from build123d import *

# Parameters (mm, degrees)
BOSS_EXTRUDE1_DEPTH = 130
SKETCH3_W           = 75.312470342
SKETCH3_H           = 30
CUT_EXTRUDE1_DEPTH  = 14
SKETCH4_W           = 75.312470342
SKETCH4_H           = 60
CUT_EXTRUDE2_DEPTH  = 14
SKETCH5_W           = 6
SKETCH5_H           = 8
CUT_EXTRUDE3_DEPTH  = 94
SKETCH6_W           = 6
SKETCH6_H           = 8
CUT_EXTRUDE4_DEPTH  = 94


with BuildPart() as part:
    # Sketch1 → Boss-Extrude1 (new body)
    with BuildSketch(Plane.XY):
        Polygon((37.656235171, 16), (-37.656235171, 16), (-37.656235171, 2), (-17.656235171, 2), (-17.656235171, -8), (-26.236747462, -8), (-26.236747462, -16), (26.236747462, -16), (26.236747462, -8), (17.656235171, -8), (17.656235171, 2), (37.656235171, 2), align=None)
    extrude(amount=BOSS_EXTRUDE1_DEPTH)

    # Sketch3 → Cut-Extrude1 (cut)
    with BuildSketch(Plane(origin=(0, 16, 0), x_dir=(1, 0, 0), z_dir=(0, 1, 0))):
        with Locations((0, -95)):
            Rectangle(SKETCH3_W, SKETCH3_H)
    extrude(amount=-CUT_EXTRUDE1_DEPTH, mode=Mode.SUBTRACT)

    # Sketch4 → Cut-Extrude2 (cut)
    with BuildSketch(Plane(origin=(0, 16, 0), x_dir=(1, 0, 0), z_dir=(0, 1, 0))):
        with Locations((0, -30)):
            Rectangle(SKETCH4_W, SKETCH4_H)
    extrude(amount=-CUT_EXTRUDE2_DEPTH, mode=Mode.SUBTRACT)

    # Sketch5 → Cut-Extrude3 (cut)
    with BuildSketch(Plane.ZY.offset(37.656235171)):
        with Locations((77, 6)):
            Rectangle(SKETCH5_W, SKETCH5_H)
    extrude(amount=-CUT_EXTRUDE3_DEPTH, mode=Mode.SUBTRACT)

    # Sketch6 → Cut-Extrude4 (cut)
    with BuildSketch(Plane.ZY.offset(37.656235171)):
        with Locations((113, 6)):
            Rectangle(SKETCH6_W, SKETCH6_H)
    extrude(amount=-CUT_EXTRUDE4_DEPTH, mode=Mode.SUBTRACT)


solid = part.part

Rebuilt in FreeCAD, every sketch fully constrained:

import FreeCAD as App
import Part
import Sketcher


def add_polygon(sketch, points):
    """Adds a closed chain of lines whose ends are joined by coincident constraints."""
    first, n = sketch.GeometryCount, len(points)
    for a, b in zip(points, points[1:] + points[:1]):
        sketch.addGeometry(Part.LineSegment(App.Vector(*a, 0), App.Vector(*b, 0)), False)
    for i in range(n):
        sketch.addConstraint(Sketcher.Constraint("Coincident", first + i, 2, first + (i + 1) % n, 1))

doc = App.newDocument("Part")
body = doc.addObject("PartDesign::Body", "Body")

# Sketch on XY plane
sketch1 = doc.addObject("Sketcher::SketchObject", "Sketch")
body.addObject(sketch1)
sketch1.AttachmentSupport = (doc.XY_Plane, [""])
sketch1.MapMode = "FlatFace"
add_polygon(sketch1, [(37.656235, 16), (-37.656235, 16), (-37.656235, 2), (-17.656235, 2), (-17.656235, -8), (-26.236747, -8), (-26.236747, -16), (26.236747, -16), (26.236747, -8), (17.656235, -8), (17.656235, 2), (37.656235, 2)])  # lines 0-11
sketch1.addConstraint([
    Sketcher.Constraint("Horizontal", 0),
    Sketcher.Constraint("Vertical", 1),
    Sketcher.Constraint("Horizontal", 2),
    Sketcher.Constraint("Vertical", 3),
    Sketcher.Constraint("Horizontal", 4),
    Sketcher.Constraint("Vertical", 5),
    Sketcher.Constraint("Horizontal", 6),
    Sketcher.Constraint("Vertical", 7),
    Sketcher.Constraint("Horizontal", 8),
    Sketcher.Constraint("Vertical", 9),
    Sketcher.Constraint("Horizontal", 10),
    Sketcher.Constraint("Vertical", 11),
    Sketcher.Constraint("Symmetric", 4, 2, 7, 2, -2),
    Sketcher.Constraint("Symmetric", 2, 2, 9, 2, -2),
    Sketcher.Constraint("Equal", 2, 10),
    Sketcher.Constraint("DistanceX", 2, 1, 2, 2, 20.0),
    Sketcher.Constraint("DistanceY", 1, 2, 1, 1, 14.0),
    Sketcher.Constraint("DistanceY", 3, 2, 3, 1, 10.0),
    Sketcher.Constraint("DistanceY", 5, 2, 5, 1, 8.0),
    Sketcher.Constraint("DistanceY", -1, 1, 0, 2, 16.0),
    Sketcher.Constraint("DistanceX", 0, 2, 0, 1, 75.31247),
    Sketcher.Constraint("DistanceX", 4, 2, 4, 1, 8.580512),
])
pad1 = doc.addObject("PartDesign::Pad", "Pad")
body.addObject(pad1)
pad1.Profile = sketch1
pad1.Length = 130

# Sketch on XZ plane
sketch2 = doc.addObject("Sketcher::SketchObject", "Sketch001")
body.addObject(sketch2)
sketch2.AttachmentSupport = (doc.XZ_Plane, [""])
sketch2.MapMode = "FlatFace"
sketch2.AttachmentOffset = App.Placement(App.Vector(0, 0, -16), App.Rotation())
add_polygon(sketch2, [(-37.656235, 80), (-37.656235, 110), (37.656235, 110), (37.656235, 80)])  # lines 0-3
sketch2.addConstraint([
    Sketcher.Constraint("Vertical", 0),
    Sketcher.Constraint("Horizontal", 1),
    Sketcher.Constraint("Vertical", 2),
    Sketcher.Constraint("Horizontal", 3),
    Sketcher.Constraint("DistanceY", 0, 1, 0, 2, 30.0),
    Sketcher.Constraint("DistanceY", -1, 1, 0, 2, 110.0),
    Sketcher.Constraint("DistanceX", 1, 1, 1, 2, 75.31247),
    Sketcher.Constraint("DistanceX", 0, 2, -1, 1, 37.656235),
])
pocket1 = doc.addObject("PartDesign::Pocket", "Pocket")
body.addObject(pocket1)
pocket1.Profile = sketch2
pocket1.Length = 14
pocket1.Reversed = True

# Sketch on XZ plane
sketch3 = doc.addObject("Sketcher::SketchObject", "Sketch002")
body.addObject(sketch3)
sketch3.AttachmentSupport = (doc.XZ_Plane, [""])
sketch3.MapMode = "FlatFace"
sketch3.AttachmentOffset = App.Placement(App.Vector(0, 0, -16), App.Rotation())
add_polygon(sketch3, [(-37.656235, 0), (-37.656235, 60), (37.656235, 60), (37.656235, 0)])  # lines 0-3
sketch3.addConstraint([
    Sketcher.Constraint("Vertical", 0),
    Sketcher.Constraint("Horizontal", 1),
    Sketcher.Constraint("Vertical", 2),
    Sketcher.Constraint("Horizontal", 3),
    Sketcher.Constraint("Symmetric", 2, 2, 3, 2, -1, 1),
    Sketcher.Constraint("DistanceY", 0, 1, 0, 2, 60.0),
    Sketcher.Constraint("DistanceX", 1, 1, 1, 2, 75.31247),
])
pocket2 = doc.addObject("PartDesign::Pocket", "Pocket001")
body.addObject(pocket2)
pocket2.Profile = sketch3
pocket2.Length = 14
pocket2.Reversed = True

# Sketch on YZ plane
sketch4 = doc.addObject("Sketcher::SketchObject", "Sketch003")
body.addObject(sketch4)
sketch4.AttachmentSupport = (doc.YZ_Plane, [""])
sketch4.MapMode = "FlatFace"
sketch4.AttachmentOffset = App.Placement(App.Vector(0, 0, -37.656235), App.Rotation())
add_polygon(sketch4, [(10, 74), (2, 74), (2, 80), (10, 80)])  # lines 0-3
sketch4.addConstraint([
    Sketcher.Constraint("Horizontal", 0),
    Sketcher.Constraint("Vertical", 1),
    Sketcher.Constraint("Horizontal", 2),
    Sketcher.Constraint("Vertical", 3),
    Sketcher.Constraint("DistanceX", 0, 2, 0, 1, 8.0),
    Sketcher.Constraint("DistanceY", 1, 1, 1, 2, 6.0),
    Sketcher.Constraint("DistanceX", -1, 1, 0, 2, 2.0),
    Sketcher.Constraint("DistanceY", -1, 1, 0, 2, 74.0),
])
pocket3 = doc.addObject("PartDesign::Pocket", "Pocket002")
body.addObject(pocket3)
pocket3.Profile = sketch4
pocket3.Length = 94
pocket3.Reversed = True

# Sketch on YZ plane
sketch5 = doc.addObject("Sketcher::SketchObject", "Sketch004")
body.addObject(sketch5)
sketch5.AttachmentSupport = (doc.YZ_Plane, [""])
sketch5.MapMode = "FlatFace"
sketch5.AttachmentOffset = App.Placement(App.Vector(0, 0, -37.656235), App.Rotation())
add_polygon(sketch5, [(10, 110), (2, 110), (2, 116), (10, 116)])  # lines 0-3
sketch5.addConstraint([
    Sketcher.Constraint("Horizontal", 0),
    Sketcher.Constraint("Vertical", 1),
    Sketcher.Constraint("Horizontal", 2),
    Sketcher.Constraint("Vertical", 3),
    Sketcher.Constraint("DistanceX", 0, 2, 0, 1, 8.0),
    Sketcher.Constraint("DistanceY", 1, 1, 1, 2, 6.0),
    Sketcher.Constraint("DistanceX", -1, 1, 0, 2, 2.0),
    Sketcher.Constraint("DistanceY", -1, 1, 0, 2, 110.0),
])
pocket4 = doc.addObject("PartDesign::Pocket", "Pocket003")
body.addObject(pocket4)
pocket4.Profile = sketch5
pocket4.Length = 94
pocket4.Reversed = True

doc.recompute()
